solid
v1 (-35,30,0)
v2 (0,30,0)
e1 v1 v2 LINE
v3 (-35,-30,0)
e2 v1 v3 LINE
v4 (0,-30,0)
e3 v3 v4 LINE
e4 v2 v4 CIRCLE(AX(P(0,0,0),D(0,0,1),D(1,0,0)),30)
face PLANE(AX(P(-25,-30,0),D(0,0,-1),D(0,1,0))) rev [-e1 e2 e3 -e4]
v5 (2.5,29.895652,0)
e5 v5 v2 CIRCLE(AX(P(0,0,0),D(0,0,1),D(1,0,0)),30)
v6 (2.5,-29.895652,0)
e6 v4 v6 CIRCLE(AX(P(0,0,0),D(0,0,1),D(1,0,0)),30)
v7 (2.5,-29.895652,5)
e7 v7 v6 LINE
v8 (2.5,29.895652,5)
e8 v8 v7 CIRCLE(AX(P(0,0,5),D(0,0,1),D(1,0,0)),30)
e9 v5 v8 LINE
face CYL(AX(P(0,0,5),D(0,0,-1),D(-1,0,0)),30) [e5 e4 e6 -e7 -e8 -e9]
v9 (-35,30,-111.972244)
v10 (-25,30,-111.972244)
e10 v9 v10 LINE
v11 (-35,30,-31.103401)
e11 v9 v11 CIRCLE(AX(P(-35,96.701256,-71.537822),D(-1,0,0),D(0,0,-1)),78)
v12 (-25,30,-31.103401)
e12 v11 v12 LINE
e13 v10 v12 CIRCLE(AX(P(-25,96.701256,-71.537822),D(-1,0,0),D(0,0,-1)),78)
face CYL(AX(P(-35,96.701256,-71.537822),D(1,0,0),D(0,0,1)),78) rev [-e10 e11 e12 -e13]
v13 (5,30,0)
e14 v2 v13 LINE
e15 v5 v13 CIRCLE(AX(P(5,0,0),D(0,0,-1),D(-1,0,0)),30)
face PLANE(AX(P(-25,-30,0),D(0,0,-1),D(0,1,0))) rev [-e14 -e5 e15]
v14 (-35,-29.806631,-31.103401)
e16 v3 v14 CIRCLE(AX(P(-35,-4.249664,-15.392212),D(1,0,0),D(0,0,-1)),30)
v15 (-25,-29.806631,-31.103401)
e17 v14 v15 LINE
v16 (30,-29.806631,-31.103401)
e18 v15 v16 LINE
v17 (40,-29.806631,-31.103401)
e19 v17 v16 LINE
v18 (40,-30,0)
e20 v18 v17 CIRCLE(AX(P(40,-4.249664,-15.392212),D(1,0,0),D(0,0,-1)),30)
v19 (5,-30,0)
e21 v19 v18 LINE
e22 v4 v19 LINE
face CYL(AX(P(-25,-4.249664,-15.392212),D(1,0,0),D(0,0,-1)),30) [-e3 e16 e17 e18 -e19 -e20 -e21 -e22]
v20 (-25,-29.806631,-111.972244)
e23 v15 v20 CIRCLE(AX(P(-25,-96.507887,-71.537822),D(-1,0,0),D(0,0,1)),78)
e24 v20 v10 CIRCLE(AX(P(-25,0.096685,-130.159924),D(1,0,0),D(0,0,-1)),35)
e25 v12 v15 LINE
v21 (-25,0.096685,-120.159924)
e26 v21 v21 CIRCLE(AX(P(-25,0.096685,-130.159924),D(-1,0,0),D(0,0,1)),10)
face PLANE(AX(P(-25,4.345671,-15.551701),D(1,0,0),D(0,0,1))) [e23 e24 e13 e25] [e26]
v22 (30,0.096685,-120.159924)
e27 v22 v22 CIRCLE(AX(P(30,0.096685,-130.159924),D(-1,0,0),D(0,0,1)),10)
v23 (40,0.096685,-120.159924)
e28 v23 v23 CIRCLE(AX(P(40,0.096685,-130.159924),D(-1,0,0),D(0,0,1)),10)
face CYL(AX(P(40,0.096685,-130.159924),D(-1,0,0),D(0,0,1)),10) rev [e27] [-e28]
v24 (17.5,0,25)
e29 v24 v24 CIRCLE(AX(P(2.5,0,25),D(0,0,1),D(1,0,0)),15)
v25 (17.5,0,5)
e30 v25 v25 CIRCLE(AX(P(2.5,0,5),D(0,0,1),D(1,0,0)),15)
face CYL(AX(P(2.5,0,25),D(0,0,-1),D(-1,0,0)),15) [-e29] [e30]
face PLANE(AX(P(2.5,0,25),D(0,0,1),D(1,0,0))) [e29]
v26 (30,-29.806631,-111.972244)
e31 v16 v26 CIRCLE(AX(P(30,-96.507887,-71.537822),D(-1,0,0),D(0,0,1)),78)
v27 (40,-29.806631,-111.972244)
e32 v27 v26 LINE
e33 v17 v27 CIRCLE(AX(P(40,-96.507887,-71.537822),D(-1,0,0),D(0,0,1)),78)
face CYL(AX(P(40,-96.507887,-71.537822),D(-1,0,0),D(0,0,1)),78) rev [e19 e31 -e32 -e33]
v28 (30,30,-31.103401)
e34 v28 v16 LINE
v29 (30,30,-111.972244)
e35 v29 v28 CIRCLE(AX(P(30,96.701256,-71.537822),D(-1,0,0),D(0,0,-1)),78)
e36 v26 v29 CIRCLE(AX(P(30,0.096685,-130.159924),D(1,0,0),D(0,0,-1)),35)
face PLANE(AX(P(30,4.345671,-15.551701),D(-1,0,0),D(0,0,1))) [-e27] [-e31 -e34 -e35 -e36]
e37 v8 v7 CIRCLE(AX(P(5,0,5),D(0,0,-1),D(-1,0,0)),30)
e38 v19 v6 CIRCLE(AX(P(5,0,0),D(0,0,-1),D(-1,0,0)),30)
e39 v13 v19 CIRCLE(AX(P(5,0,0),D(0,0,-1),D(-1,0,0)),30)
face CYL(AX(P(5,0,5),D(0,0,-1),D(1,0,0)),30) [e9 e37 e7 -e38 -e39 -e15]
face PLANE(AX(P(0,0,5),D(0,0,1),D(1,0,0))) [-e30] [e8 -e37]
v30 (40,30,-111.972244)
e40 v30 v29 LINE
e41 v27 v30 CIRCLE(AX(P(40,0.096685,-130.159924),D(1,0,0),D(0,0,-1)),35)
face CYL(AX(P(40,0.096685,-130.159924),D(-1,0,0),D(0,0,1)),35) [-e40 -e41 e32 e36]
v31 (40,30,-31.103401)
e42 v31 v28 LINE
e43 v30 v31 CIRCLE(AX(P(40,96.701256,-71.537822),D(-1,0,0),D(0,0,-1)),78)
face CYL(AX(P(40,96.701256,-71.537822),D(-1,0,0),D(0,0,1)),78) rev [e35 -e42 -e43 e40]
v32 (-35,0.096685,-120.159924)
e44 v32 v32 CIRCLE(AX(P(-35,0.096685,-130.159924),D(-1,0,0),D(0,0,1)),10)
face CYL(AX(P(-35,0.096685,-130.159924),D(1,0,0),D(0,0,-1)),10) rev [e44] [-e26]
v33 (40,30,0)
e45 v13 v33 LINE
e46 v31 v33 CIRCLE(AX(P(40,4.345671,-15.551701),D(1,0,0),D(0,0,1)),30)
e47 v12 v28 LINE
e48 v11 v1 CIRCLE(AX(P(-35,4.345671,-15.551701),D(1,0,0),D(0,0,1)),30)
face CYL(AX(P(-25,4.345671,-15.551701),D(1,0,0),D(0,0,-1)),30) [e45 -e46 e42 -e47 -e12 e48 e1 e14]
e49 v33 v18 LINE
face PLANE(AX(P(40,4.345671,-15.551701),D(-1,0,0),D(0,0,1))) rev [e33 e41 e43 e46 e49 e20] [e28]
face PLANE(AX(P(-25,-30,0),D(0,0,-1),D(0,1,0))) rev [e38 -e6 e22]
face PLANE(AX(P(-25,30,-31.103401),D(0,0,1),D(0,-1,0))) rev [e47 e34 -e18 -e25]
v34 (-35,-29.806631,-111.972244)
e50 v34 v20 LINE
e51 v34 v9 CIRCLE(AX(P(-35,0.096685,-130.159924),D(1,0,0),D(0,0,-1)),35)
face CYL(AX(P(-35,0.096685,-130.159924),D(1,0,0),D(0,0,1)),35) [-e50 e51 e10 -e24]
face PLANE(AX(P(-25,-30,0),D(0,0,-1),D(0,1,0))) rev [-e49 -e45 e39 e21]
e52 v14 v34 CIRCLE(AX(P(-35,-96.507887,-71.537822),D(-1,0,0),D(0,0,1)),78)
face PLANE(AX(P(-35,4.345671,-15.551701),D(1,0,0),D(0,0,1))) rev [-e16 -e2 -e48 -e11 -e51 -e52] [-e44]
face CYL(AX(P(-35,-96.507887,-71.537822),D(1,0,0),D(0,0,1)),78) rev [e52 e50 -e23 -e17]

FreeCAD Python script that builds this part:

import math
import FreeCAD as App
import Part
import Sketcher

doc = App.newDocument("Part")
params = doc.addObject("Spreadsheet::Sheet", "Params")
for row, (alias, value) in enumerate([
    ("sketch1_diameter", "60 mm"),
    ("pad1_length", "5 mm"),
    ("sketch2_radius", "30 mm"),
    ("sketch2_radius2", "78 mm"),
    ("sketch2_radius3", "35 mm"),
    ("sketch2_width", "60 mm"),
    ("pad2_length", "10 mm"),
    ("sketch3_radius", "30 mm"),
    ("sketch3_width", "60 mm"),
    ("pad3_length", "55 mm"),
    ("sketch4_diameter", "30 mm"),
    ("pad4_length", "20 mm"),
    ("sketch5_diameter", "20 mm"),
    ("pocket1_length", "10 mm"),
], start=1):
    params.set(f"A{row}", alias)
    params.set(f"B{row}", "=" + value)
    params.setAlias(f"B{row}", alias)

body = doc.addObject("PartDesign::Body", "Body")

# Sketch on XY plane
sketch1 = body.newObject("Sketcher::SketchObject", "Sketch")
sketch1.AttachmentSupport = (doc.getObject("XY_Plane"), [""])
sketch1.MapMode = "FlatFace"
sketch1.addGeometry(Part.Circle(App.Vector(0, 0, 0), App.Vector(0, 0, 1), 30), False)
sketch1.addConstraint(Sketcher.Constraint("Coincident", 0, 3, -1, 1))
sketch1.addConstraint(Sketcher.Constraint("Diameter", 0, 60.0))
sketch1.setExpression("Constraints[1]", "Params.sketch1_diameter")
pad1 = body.newObject("PartDesign::Pad", "Pad")
pad1.Profile = sketch1
pad1.setExpression("Length", "Params.pad1_length")
body2 = doc.addObject("PartDesign::Body", "Body001")

# Sketch on YZ plane
sketch2 = body2.newObject("Sketcher::SketchObject", "Sketch001")
sketch2.AttachmentSupport = (doc.getObject("YZ_Plane001"), [""])
sketch2.MapMode = "FlatFace"
sketch2.AttachmentOffset = App.Placement(App.Vector(0, 0, 30), App.Rotation())
sketch2.addGeometry(Part.LineSegment(App.Vector(30, 0, 0), App.Vector(-30, 0, 0)), False)
sketch2.addGeometry(Part.ArcOfCircle(Part.Circle(App.Vector(-4, -15, 0), App.Vector(0, 0, 1), 30), math.radians(149), math.radians(212)), False)
sketch2.addGeometry(Part.ArcOfCircle(Part.Circle(App.Vector(-97, -72, 0), App.Vector(0, 0, 1), 78), math.radians(-31), math.radians(31)), False)
sketch2.addGeometry(Part.ArcOfCircle(Part.Circle(App.Vector(0, -130, 0), App.Vector(0, 0, 1), 35), math.radians(149), math.radians(391)), False)
sketch2.addGeometry(Part.ArcOfCircle(Part.Circle(App.Vector(97, -72, 0), App.Vector(0, 0, 1), 78), math.radians(149), math.radians(211)), False)
sketch2.addGeometry(Part.ArcOfCircle(Part.Circle(App.Vector(4, -16, 0), App.Vector(0, 0, 1), 30), math.radians(-31), math.radians(31)), False)
sketch2.addConstraint(Sketcher.Constraint("Coincident", 0, 2, 1, 1))
sketch2.addConstraint(Sketcher.Constraint("Coincident", 1, 2, 2, 2))
sketch2.addConstraint(Sketcher.Constraint("Coincident", 2, 1, 3, 1))
sketch2.addConstraint(Sketcher.Constraint("Coincident", 3, 2, 4, 2))
sketch2.addConstraint(Sketcher.Constraint("Tangent", 4, 1, 5, 1))
sketch2.addConstraint(Sketcher.Constraint("Coincident", 5, 2, 0, 1))
sketch2.addConstraint(Sketcher.Constraint("Horizontal", 0))
sketch2.addConstraint(Sketcher.Constraint("Equal", 2, 4))
sketch2.addConstraint(Sketcher.Constraint("Equal", 1, 5))
sketch2.addConstraint(Sketcher.Constraint("Symmetric", 0, 2, 5, 2, -1, 1))
sketch2.addConstraint(Sketcher.Constraint("Horizontal", 2, 3, 4, 3))
sketch2.addConstraint(Sketcher.Constraint("Horizontal", 2, 1, 3, 2))
sketch2.addConstraint(Sketcher.Constraint("Horizontal", 1, 2, 4, 1))
sketch2.addConstraint(Sketcher.Constraint("Vertical", 1, 2, 2, 1))
sketch2.addConstraint(Sketcher.Constraint("Vertical", 4, 1, 5, 2))
sketch2.addConstraint(Sketcher.Constraint("Radius", 1, 30.0))
sketch2.addConstraint(Sketcher.Constraint("Radius", 2, 78.0))
sketch2.addConstraint(Sketcher.Constraint("Radius", 3, 35.0))
sketch2.addConstraint(Sketcher.Constraint("DistanceX", 0, 2, 0, 1, 60.0))
sketch2.addConstraint(Sketcher.Constraint("DistanceY", 5, 3, -1, 1, 15.551701))
sketch2.addConstraint(Sketcher.Constraint("DistanceX", 1, 2, 5, 3, 34.152301))
sketch2.setExpression("Constraints[15]", "Params.sketch2_radius")
sketch2.setExpression("Constraints[16]", "Params.sketch2_radius2")
sketch2.setExpression("Constraints[17]", "Params.sketch2_radius3")
sketch2.setExpression("Constraints[18]", "Params.sketch2_width")
pad2 = body2.newObject("PartDesign::Pad", "Pad001")
pad2.Profile = sketch2
pad2.setExpression("Length", "Params.pad2_length")
body.AllowCompound = True
doc.recompute()

boolean = body.newObject("PartDesign::Boolean", "Boolean")
boolean.Type = "Fuse"
boolean.addObjects([body2])

# Sketch on YZ plane
sketch3 = body.newObject("Sketcher::SketchObject", "Sketch002")
sketch3.AttachmentSupport = (doc.getObject("YZ_Plane"), [""])
sketch3.MapMode = "FlatFace"
sketch3.AttachmentOffset = App.Placement(App.Vector(0, 0, 30), App.Rotation())
sketch3.addGeometry(Part.LineSegment(App.Vector(30, -31, 0), App.Vector(-30, -31, 0)), False)
sketch3.addGeometry(Part.ArcOfCircle(Part.Circle(App.Vector(-4, -15, 0), App.Vector(0, 0, 1), 30), math.radians(149), math.radians(212)), False)
sketch3.addGeometry(Part.LineSegment(App.Vector(-30, 0, 0), App.Vector(30, 0, 0)), False)
sketch3.addGeometry(Part.ArcOfCircle(Part.Circle(App.Vector(4, -16, 0), App.Vector(0, 0, 1), 30), math.radians(-31), math.radians(31)), False)
sketch3.addConstraint(Sketcher.Constraint("Coincident", 0, 2, 1, 2))
sketch3.addConstraint(Sketcher.Constraint("Coincident", 1, 1, 2, 1))
sketch3.addConstraint(Sketcher.Constraint("Coincident", 2, 2, 3, 2))
sketch3.addConstraint(Sketcher.Constraint("Coincident", 3, 1, 0, 1))
sketch3.addConstraint(Sketcher.Constraint("Horizontal", 0))
sketch3.addConstraint(Sketcher.Constraint("Horizontal", 2))
sketch3.addConstraint(Sketcher.Constraint("Equal", 1, 3))
sketch3.addConstraint(Sketcher.Constraint("Symmetric", 1, 1, 2, 2, -1, 1))
sketch3.addConstraint(Sketcher.Constraint("Vertical", 2, 2, 3, 1))
sketch3.addConstraint(Sketcher.Constraint("Radius", 1, 30.0))
sketch3.addConstraint(Sketcher.Constraint("DistanceX", 2, 1, 2, 2, 60.0))
sketch3.addConstraint(Sketcher.Constraint("DistanceX", 0, 2, 0, 1, 59.806631))
sketch3.addConstraint(Sketcher.Constraint("DistanceY", 3, 3, -1, 1, 15.551701))
sketch3.setExpression("Constraints[9]", "Params.sketch3_radius")
sketch3.setExpression("Constraints[10]", "Params.sketch3_width")
pad3 = body.newObject("PartDesign::Pad", "Pad002")
pad3.Profile = sketch3
pad3.setExpression("Length", "Params.pad3_length")
pad3.Reversed = True
body3 = doc.addObject("PartDesign::Body", "Body002")
doc.recompute()

body3.BaseFeature = body
doc.recompute()

mirroring = doc.addObject("Part::Mirroring", "Mirroring")
mirroring.Source = body
mirroring.Base = App.Vector(2.5, 0, 0)
mirroring.Normal = App.Vector(-1, 0, 0)
body4 = doc.addObject("PartDesign::Body", "Body003")
body4.BaseFeature = mirroring
boolean2 = body3.newObject("PartDesign::Boolean", "Boolean001")
boolean2.Type = "Fuse"
boolean2.addObjects([body4])
doc.recompute()

# Sketch on XY plane
sketch4 = body3.newObject("Sketcher::SketchObject", "Sketch003")
sketch4.AttachmentSupport = (doc.getObject("XY_Plane002"), [""])
sketch4.MapMode = "FlatFace"
sketch4.AttachmentOffset = App.Placement(App.Vector(0, 0, 5), App.Rotation())
sketch4.addGeometry(Part.Circle(App.Vector(2, 0, 0), App.Vector(0, 0, 1), 15), False)
sketch4.addConstraint(Sketcher.Constraint("PointOnObject", 0, 3, -1))
sketch4.addConstraint(Sketcher.Constraint("Diameter", 0, 30.0))
sketch4.addConstraint(Sketcher.Constraint("DistanceX", -1, 1, 0, 3, 2.5))
sketch4.setExpression("Constraints[1]", "Params.sketch4_diameter")
pad4 = body3.newObject("PartDesign::Pad", "Pad003")
pad4.Profile = sketch4
pad4.setExpression("Length", "Params.pad4_length")

# Sketch on YZ plane
sketch5 = body3.newObject("Sketcher::SketchObject", "Sketch004")
sketch5.AttachmentSupport = (doc.getObject("YZ_Plane002"), [""])
sketch5.MapMode = "FlatFace"
sketch5.AttachmentOffset = App.Placement(App.Vector(0, 0, 30), App.Rotation())
sketch5.addGeometry(Part.Circle(App.Vector(0, -130, 0), App.Vector(0, 0, 1), 10), False)
sketch5.addConstraint(Sketcher.Constraint("Diameter", 0, 20.0))
sketch5.addConstraint(Sketcher.Constraint("DistanceX", -1, 1, 0, 3, 0.096685))
sketch5.addConstraint(Sketcher.Constraint("DistanceY", 0, 3, -1, 1, 130.159924))
sketch5.setExpression("Constraints[0]", "Params.sketch5_diameter")
pocket1 = body3.newObject("PartDesign::Pocket", "Pocket")
pocket1.Profile = sketch5
pocket1.setExpression("Length", "Params.pocket1_length")
pocket1.Reversed = True
doc.recompute()

datumplane = body3.newObject("PartDesign::Plane", "DatumPlane")
datumplane.AttachmentSupport = (doc.getObject("YZ_Plane002"), [""])
datumplane.MapMode = "FlatFace"
datumplane.AttachmentOffset = App.Placement(App.Vector(0, 0, 2.5), App.Rotation())
mirrored = body3.newObject("PartDesign::Mirrored", "Mirrored")
mirrored.Originals = [pocket1]
mirrored.MirrorPlane = (datumplane, [""])
body3.Tip = mirrored
mirroring.Visibility = False

doc.recompute()
